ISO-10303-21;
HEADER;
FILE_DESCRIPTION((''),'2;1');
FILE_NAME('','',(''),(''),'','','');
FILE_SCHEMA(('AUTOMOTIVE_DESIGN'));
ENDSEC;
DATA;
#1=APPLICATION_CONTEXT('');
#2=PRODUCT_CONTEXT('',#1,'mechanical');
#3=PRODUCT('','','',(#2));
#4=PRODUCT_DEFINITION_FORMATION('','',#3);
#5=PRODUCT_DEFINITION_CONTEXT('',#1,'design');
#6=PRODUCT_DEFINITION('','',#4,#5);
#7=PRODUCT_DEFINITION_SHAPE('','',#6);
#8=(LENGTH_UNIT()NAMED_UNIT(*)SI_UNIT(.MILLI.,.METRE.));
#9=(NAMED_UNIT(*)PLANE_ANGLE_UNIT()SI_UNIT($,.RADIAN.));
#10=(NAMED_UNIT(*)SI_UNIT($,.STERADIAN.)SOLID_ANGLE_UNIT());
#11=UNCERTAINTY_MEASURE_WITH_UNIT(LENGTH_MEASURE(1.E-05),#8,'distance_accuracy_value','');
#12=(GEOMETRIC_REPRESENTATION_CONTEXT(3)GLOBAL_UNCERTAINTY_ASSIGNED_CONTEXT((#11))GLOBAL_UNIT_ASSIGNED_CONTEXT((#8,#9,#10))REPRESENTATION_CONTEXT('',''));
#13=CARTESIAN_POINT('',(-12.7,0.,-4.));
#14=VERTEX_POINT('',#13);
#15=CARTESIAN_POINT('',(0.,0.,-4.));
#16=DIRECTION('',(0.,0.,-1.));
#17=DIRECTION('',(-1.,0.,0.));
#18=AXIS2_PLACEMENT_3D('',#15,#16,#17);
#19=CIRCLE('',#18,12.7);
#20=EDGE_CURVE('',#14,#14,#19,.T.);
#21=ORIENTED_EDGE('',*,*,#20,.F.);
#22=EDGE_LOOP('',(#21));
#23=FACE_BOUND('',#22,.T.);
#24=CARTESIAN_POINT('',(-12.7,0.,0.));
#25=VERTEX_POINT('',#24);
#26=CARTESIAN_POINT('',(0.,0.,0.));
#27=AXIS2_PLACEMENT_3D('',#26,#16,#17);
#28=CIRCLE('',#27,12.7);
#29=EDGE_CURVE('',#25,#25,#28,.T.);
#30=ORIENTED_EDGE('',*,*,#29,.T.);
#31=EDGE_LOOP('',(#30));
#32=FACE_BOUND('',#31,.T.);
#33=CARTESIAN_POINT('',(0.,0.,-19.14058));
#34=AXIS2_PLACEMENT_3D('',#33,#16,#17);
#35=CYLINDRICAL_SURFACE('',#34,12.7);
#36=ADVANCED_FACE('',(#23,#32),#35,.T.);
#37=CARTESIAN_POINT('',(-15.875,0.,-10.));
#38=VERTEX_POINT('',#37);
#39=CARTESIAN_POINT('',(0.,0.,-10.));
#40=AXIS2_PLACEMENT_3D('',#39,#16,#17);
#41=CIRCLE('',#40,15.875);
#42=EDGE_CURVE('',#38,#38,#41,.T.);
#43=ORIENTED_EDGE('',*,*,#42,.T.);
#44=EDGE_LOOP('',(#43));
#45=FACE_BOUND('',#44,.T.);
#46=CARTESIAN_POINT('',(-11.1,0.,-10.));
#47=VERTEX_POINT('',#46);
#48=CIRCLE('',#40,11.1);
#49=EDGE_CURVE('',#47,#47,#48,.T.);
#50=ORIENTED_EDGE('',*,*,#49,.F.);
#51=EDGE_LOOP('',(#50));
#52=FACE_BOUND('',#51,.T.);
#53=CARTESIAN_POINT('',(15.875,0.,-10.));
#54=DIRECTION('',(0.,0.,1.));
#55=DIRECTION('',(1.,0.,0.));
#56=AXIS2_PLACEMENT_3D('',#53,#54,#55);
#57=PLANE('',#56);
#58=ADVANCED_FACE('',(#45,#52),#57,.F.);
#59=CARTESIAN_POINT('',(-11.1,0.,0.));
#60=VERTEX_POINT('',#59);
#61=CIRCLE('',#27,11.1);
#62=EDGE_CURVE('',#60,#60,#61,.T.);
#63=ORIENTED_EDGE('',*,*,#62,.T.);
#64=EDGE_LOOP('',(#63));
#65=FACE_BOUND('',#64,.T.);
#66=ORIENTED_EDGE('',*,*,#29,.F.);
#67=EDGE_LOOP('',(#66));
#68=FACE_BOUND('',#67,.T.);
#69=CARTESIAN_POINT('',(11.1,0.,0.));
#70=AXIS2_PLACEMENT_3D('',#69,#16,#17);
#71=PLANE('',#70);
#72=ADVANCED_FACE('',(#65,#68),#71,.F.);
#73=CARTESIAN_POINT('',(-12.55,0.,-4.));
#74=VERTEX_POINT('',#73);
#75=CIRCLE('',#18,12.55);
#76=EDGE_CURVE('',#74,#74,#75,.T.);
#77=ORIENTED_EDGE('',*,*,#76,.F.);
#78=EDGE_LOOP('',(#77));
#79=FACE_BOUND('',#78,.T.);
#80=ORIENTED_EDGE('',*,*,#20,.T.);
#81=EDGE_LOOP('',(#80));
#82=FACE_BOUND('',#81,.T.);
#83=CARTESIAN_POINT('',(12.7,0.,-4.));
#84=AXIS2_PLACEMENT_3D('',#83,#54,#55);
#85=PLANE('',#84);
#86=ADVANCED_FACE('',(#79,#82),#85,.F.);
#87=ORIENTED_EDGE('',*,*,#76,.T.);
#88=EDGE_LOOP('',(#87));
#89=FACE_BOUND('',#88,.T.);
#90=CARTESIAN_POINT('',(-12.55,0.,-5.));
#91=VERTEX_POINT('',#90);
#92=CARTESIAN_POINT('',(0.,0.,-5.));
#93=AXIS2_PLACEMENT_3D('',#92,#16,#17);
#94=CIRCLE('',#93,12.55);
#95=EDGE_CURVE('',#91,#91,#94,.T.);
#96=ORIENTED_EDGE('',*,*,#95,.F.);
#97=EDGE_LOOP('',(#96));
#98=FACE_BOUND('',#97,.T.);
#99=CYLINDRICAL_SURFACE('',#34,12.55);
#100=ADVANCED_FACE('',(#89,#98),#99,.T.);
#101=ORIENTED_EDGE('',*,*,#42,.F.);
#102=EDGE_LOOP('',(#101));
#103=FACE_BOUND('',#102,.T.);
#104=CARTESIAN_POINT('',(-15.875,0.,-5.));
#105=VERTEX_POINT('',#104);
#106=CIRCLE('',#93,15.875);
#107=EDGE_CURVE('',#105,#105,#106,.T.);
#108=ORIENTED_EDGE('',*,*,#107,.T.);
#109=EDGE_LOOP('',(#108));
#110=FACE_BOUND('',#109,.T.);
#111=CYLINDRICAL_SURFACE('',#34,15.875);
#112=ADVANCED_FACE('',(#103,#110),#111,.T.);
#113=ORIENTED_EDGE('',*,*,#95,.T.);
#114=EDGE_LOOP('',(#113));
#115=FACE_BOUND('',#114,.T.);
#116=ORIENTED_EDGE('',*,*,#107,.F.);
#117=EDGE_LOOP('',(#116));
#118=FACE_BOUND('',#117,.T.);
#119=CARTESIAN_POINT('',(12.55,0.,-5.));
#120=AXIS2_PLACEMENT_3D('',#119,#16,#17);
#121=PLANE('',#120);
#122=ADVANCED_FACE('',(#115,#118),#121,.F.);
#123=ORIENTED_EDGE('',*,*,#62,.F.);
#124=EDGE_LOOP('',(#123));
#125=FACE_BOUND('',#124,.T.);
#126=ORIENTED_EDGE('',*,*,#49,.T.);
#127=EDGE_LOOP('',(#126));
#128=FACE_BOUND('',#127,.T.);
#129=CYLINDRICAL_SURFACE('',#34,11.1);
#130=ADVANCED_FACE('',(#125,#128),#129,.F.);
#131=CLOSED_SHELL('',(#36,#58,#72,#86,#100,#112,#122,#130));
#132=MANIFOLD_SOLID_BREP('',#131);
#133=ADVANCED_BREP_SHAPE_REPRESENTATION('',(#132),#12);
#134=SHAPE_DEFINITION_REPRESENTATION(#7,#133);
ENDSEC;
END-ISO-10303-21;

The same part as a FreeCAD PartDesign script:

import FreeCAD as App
import Part
import Sketcher
from FreeCAD import Vector

doc = App.newDocument("Part")
body = doc.addObject("PartDesign::Body", "Body")

# Sketch on XZ plane
sketch1 = body.newObject("Sketcher::SketchObject", "Sketch")
sketch1.AttachmentSupport = (doc.getObject("XZ_Plane"), [""])
sketch1.MapMode = "FlatFace"
sketch1.addGeometry([
    Part.LineSegment(Vector(11.1, -10, 0), Vector(11.1, 0, 0)),  # 0
    Part.LineSegment(Vector(11.1, 0, 0), Vector(12.7, 0, 0)),  # 1
    Part.LineSegment(Vector(12.7, 0, 0), Vector(12.7, -4, 0)),  # 2
    Part.LineSegment(Vector(12.7, -4, 0), Vector(12.55, -4, 0)),  # 3
    Part.LineSegment(Vector(12.55, -4, 0), Vector(12.55, -5, 0)),  # 4
    Part.LineSegment(Vector(12.55, -5, 0), Vector(15.88, -5, 0)),  # 5
    Part.LineSegment(Vector(15.88, -5, 0), Vector(15.88, -10, 0)),  # 6
    Part.LineSegment(Vector(15.88, -10, 0), Vector(11.1, -10, 0)),  # 7
], False)
sketch1.addConstraint([
    Sketcher.Constraint("Coincident", 0, 2, 1, 1),
    Sketcher.Constraint("Coincident", 1, 2, 2, 1),
    Sketcher.Constraint("Coincident", 2, 2, 3, 1),
    Sketcher.Constraint("Coincident", 3, 2, 4, 1),
    Sketcher.Constraint("Coincident", 4, 2, 5, 1),
    Sketcher.Constraint("Coincident", 5, 2, 6, 1),
    Sketcher.Constraint("Coincident", 6, 2, 7, 1),
    Sketcher.Constraint("Coincident", 7, 2, 0, 1),
    Sketcher.Constraint("Vertical", 0),
    Sketcher.Constraint("Horizontal", 1),
    Sketcher.Constraint("Vertical", 2),
    Sketcher.Constraint("Horizontal", 3),
    Sketcher.Constraint("Vertical", 4),
    Sketcher.Constraint("Horizontal", 5),
    Sketcher.Constraint("Vertical", 6),
    Sketcher.Constraint("Horizontal", 7),
    Sketcher.Constraint("PointOnObject", 0, 2, -1),
    Sketcher.Constraint("DistanceY", 0, 1, 0, 2, 10.0),
    Sketcher.Constraint("DistanceY", 2, 2, 2, 1, 4.0),
    Sketcher.Constraint("DistanceY", 4, 2, 4, 1, 1.0),
    Sketcher.Constraint("DistanceX", 1, 1, 1, 2, 1.6),
    Sketcher.Constraint("DistanceX", 3, 2, 3, 1, 0.15),
    Sketcher.Constraint("DistanceX", -1, 1, 0, 2, 11.1),
    Sketcher.Constraint("DistanceX", 5, 1, 5, 2, 3.325),
])
revolution = body.newObject("PartDesign::Revolution", "Revolution")
revolution.Profile = sketch1
revolution.ReferenceAxis = (sketch1, ["V_Axis"])
revolution.Angle = 360

doc.recompute()
